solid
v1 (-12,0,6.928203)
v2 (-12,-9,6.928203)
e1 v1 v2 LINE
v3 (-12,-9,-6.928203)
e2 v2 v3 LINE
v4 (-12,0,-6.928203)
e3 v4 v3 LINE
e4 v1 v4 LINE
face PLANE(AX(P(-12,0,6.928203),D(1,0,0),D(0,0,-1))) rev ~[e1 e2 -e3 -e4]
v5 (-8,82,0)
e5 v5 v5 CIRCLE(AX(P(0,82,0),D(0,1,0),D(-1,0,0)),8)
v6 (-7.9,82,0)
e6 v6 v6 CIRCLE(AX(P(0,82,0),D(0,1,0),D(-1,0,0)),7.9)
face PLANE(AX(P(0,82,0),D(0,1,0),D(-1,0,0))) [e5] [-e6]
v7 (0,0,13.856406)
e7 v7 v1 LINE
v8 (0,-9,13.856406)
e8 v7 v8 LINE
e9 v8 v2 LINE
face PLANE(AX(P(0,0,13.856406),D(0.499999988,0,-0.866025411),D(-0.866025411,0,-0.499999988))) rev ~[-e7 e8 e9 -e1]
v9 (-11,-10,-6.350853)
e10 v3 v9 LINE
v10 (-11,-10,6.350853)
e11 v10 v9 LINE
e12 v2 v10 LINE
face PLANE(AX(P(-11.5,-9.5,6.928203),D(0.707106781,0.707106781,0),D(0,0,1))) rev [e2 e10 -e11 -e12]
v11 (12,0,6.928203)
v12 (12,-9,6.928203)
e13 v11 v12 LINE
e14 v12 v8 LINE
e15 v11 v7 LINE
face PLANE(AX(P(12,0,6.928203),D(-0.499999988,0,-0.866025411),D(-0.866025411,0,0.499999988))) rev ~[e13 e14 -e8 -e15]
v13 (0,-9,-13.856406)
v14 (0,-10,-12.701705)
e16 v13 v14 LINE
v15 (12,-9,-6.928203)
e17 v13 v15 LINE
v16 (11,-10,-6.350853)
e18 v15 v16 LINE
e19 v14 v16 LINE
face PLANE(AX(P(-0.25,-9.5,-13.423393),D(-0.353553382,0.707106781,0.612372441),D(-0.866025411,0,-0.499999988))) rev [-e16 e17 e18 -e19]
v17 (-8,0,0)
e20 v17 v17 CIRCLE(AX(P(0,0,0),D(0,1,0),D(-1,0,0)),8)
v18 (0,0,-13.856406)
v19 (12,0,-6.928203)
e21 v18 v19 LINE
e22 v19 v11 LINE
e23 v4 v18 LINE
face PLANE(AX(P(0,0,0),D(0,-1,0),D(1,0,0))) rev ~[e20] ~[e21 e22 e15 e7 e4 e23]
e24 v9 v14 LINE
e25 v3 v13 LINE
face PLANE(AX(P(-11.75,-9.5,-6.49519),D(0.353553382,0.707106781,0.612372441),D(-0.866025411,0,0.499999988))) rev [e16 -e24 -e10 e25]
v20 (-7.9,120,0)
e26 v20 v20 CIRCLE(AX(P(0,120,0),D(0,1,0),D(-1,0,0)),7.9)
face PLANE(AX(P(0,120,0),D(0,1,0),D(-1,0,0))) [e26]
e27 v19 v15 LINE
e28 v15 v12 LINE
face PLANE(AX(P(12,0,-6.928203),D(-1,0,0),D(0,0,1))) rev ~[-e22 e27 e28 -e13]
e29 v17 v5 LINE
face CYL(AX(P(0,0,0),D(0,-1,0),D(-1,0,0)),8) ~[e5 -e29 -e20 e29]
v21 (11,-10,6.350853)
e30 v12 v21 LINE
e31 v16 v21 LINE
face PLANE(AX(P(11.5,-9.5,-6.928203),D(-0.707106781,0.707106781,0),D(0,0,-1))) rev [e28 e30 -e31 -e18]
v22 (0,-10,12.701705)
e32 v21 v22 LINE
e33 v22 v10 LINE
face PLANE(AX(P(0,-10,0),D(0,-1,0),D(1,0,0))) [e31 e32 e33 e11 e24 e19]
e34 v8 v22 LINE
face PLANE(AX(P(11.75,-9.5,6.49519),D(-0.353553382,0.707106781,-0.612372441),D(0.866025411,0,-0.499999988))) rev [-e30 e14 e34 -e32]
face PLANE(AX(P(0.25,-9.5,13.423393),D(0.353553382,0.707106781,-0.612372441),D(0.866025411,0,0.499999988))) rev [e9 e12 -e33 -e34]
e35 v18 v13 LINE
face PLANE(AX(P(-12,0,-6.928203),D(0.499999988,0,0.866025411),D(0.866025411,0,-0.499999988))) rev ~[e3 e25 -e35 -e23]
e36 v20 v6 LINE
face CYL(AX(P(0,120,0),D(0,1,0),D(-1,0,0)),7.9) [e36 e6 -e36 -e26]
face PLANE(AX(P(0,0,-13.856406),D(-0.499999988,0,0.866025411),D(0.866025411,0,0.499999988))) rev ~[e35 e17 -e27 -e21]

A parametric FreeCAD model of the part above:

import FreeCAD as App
import Part
import Sketcher
Q = App.Units.Quantity


def edges_at(feature, points):
    """Names of the edges that pass closest to the given points."""
    edges = feature.Shape.Edges
    near = lambda p: min(range(len(edges)), key=lambda i: edges[i].distToShape(Part.Vertex(*p))[0])
    return sorted({f"Edge{near(p) + 1}" for p in points})


def add_polygon(sketch, points):
    """Adds a closed chain of lines whose ends are joined by coincident constraints."""
    first, n = sketch.GeometryCount, len(points)
    for a, b in zip(points, points[1:] + points[:1]):
        sketch.addGeometry(Part.LineSegment(App.Vector(*a, 0), App.Vector(*b, 0)), False)
    for i in range(n):
        sketch.addConstraint(Sketcher.Constraint("Coincident", first + i, 2, first + (i + 1) % n, 1))

doc = App.newDocument("Part")
body = doc.addObject("PartDesign::Body", "Body")

# Sketch on XZ plane
sketch1 = doc.addObject("Sketcher::SketchObject", "Sketch")
body.addObject(sketch1)
sketch1.AttachmentSupport = (doc.XZ_Plane, [""])
sketch1.MapMode = "FlatFace"
add_polygon(sketch1, [(0, -14), (12, -7), (12, 7), (0, 14), (-12, 7), (-12, -7)])  # lines 0-5
sketch1.addConstraint([
    Sketcher.Constraint("Vertical", 1),
    Sketcher.Constraint("Vertical", 4),
    Sketcher.Constraint("Symmetric", 0, 2, 3, 2, -1, 1),
    Sketcher.Constraint("Symmetric", 2, 2, 5, 2, -1, 1),
    Sketcher.Constraint("PointOnObject", 2, 2, -2),
    Sketcher.Constraint("Parallel", 2, 5),
    Sketcher.Constraint("Horizontal", 1, 2, 3, 2),
    Sketcher.Constraint("Angle", 0, Q("29.999999 deg")),
    Sketcher.Constraint("DistanceX", -1, 1, 0, 2, Q("12 mm")),
    Sketcher.Constraint("DistanceY", 1, 1, 1, 2, Q("13.856406 mm")),
])
pad1 = doc.addObject("PartDesign::Pad", "Pad")
body.addObject(pad1)
pad1.Profile = sketch1
pad1.Length = 10
doc.recompute()

chamfer = doc.addObject("PartDesign::Chamfer", "Chamfer")
body.addObject(chamfer)
chamfer.Base = (pad1, edges_at(pad1, [
    (6, -10, 10.392),
    (-6, -10, 10.392),
    (12, -10, 0),
    (6, -10, -10.392),
    (-6, -10, -10.392),
    (-12, -10, 0),
]))
chamfer.ChamferType = "Two distances"
chamfer.Size = 1
chamfer.Size2 = 1

# Sketch on XZ plane
sketch2 = doc.addObject("Sketcher::SketchObject", "Sketch001")
body.addObject(sketch2)
sketch2.AttachmentSupport = (doc.XZ_Plane, [""])
sketch2.MapMode = "FlatFace"
sketch2.addGeometry(Part.Circle(App.Vector(0, 0, 0), App.Vector(0, 0, 1), 8), False)
sketch2.addConstraint([
    Sketcher.Constraint("Coincident", 0, 3, -1, 1),
    Sketcher.Constraint("Diameter", 0, Q("16 mm")),
])
pad2 = doc.addObject("PartDesign::Pad", "Pad001")
body.addObject(pad2)
pad2.Profile = sketch2
pad2.Length = 120
pad2.Reversed = True

# Sketch on XZ plane
sketch3 = doc.addObject("Sketcher::SketchObject", "Sketch002")
body.addObject(sketch3)
sketch3.AttachmentSupport = (doc.XZ_Plane, [""])
sketch3.MapMode = "FlatFace"
sketch3.AttachmentOffset = App.Placement(App.Vector(0, 0, -120), App.Rotation())
sketch3.addGeometry([
    Part.Circle(App.Vector(0, 0, 0), App.Vector(0, 0, 1), 8),
    Part.Circle(App.Vector(0, 0, 0), App.Vector(0, 0, 1), 8),
], False)
sketch3.addConstraint([
    Sketcher.Constraint("Coincident", 0, 3, -1, 1),
    Sketcher.Constraint("Coincident", 1, 3, -1, 1),
    Sketcher.Constraint("Diameter", 0, Q("16 mm")),
    Sketcher.Constraint("Diameter", 1, Q("15.8 mm")),
])
pocket1 = doc.addObject("PartDesign::Pocket", "Pocket")
body.addObject(pocket1)
pocket1.Profile = sketch3
pocket1.Length = 38
pocket1.Reversed = True

doc.recompute()
